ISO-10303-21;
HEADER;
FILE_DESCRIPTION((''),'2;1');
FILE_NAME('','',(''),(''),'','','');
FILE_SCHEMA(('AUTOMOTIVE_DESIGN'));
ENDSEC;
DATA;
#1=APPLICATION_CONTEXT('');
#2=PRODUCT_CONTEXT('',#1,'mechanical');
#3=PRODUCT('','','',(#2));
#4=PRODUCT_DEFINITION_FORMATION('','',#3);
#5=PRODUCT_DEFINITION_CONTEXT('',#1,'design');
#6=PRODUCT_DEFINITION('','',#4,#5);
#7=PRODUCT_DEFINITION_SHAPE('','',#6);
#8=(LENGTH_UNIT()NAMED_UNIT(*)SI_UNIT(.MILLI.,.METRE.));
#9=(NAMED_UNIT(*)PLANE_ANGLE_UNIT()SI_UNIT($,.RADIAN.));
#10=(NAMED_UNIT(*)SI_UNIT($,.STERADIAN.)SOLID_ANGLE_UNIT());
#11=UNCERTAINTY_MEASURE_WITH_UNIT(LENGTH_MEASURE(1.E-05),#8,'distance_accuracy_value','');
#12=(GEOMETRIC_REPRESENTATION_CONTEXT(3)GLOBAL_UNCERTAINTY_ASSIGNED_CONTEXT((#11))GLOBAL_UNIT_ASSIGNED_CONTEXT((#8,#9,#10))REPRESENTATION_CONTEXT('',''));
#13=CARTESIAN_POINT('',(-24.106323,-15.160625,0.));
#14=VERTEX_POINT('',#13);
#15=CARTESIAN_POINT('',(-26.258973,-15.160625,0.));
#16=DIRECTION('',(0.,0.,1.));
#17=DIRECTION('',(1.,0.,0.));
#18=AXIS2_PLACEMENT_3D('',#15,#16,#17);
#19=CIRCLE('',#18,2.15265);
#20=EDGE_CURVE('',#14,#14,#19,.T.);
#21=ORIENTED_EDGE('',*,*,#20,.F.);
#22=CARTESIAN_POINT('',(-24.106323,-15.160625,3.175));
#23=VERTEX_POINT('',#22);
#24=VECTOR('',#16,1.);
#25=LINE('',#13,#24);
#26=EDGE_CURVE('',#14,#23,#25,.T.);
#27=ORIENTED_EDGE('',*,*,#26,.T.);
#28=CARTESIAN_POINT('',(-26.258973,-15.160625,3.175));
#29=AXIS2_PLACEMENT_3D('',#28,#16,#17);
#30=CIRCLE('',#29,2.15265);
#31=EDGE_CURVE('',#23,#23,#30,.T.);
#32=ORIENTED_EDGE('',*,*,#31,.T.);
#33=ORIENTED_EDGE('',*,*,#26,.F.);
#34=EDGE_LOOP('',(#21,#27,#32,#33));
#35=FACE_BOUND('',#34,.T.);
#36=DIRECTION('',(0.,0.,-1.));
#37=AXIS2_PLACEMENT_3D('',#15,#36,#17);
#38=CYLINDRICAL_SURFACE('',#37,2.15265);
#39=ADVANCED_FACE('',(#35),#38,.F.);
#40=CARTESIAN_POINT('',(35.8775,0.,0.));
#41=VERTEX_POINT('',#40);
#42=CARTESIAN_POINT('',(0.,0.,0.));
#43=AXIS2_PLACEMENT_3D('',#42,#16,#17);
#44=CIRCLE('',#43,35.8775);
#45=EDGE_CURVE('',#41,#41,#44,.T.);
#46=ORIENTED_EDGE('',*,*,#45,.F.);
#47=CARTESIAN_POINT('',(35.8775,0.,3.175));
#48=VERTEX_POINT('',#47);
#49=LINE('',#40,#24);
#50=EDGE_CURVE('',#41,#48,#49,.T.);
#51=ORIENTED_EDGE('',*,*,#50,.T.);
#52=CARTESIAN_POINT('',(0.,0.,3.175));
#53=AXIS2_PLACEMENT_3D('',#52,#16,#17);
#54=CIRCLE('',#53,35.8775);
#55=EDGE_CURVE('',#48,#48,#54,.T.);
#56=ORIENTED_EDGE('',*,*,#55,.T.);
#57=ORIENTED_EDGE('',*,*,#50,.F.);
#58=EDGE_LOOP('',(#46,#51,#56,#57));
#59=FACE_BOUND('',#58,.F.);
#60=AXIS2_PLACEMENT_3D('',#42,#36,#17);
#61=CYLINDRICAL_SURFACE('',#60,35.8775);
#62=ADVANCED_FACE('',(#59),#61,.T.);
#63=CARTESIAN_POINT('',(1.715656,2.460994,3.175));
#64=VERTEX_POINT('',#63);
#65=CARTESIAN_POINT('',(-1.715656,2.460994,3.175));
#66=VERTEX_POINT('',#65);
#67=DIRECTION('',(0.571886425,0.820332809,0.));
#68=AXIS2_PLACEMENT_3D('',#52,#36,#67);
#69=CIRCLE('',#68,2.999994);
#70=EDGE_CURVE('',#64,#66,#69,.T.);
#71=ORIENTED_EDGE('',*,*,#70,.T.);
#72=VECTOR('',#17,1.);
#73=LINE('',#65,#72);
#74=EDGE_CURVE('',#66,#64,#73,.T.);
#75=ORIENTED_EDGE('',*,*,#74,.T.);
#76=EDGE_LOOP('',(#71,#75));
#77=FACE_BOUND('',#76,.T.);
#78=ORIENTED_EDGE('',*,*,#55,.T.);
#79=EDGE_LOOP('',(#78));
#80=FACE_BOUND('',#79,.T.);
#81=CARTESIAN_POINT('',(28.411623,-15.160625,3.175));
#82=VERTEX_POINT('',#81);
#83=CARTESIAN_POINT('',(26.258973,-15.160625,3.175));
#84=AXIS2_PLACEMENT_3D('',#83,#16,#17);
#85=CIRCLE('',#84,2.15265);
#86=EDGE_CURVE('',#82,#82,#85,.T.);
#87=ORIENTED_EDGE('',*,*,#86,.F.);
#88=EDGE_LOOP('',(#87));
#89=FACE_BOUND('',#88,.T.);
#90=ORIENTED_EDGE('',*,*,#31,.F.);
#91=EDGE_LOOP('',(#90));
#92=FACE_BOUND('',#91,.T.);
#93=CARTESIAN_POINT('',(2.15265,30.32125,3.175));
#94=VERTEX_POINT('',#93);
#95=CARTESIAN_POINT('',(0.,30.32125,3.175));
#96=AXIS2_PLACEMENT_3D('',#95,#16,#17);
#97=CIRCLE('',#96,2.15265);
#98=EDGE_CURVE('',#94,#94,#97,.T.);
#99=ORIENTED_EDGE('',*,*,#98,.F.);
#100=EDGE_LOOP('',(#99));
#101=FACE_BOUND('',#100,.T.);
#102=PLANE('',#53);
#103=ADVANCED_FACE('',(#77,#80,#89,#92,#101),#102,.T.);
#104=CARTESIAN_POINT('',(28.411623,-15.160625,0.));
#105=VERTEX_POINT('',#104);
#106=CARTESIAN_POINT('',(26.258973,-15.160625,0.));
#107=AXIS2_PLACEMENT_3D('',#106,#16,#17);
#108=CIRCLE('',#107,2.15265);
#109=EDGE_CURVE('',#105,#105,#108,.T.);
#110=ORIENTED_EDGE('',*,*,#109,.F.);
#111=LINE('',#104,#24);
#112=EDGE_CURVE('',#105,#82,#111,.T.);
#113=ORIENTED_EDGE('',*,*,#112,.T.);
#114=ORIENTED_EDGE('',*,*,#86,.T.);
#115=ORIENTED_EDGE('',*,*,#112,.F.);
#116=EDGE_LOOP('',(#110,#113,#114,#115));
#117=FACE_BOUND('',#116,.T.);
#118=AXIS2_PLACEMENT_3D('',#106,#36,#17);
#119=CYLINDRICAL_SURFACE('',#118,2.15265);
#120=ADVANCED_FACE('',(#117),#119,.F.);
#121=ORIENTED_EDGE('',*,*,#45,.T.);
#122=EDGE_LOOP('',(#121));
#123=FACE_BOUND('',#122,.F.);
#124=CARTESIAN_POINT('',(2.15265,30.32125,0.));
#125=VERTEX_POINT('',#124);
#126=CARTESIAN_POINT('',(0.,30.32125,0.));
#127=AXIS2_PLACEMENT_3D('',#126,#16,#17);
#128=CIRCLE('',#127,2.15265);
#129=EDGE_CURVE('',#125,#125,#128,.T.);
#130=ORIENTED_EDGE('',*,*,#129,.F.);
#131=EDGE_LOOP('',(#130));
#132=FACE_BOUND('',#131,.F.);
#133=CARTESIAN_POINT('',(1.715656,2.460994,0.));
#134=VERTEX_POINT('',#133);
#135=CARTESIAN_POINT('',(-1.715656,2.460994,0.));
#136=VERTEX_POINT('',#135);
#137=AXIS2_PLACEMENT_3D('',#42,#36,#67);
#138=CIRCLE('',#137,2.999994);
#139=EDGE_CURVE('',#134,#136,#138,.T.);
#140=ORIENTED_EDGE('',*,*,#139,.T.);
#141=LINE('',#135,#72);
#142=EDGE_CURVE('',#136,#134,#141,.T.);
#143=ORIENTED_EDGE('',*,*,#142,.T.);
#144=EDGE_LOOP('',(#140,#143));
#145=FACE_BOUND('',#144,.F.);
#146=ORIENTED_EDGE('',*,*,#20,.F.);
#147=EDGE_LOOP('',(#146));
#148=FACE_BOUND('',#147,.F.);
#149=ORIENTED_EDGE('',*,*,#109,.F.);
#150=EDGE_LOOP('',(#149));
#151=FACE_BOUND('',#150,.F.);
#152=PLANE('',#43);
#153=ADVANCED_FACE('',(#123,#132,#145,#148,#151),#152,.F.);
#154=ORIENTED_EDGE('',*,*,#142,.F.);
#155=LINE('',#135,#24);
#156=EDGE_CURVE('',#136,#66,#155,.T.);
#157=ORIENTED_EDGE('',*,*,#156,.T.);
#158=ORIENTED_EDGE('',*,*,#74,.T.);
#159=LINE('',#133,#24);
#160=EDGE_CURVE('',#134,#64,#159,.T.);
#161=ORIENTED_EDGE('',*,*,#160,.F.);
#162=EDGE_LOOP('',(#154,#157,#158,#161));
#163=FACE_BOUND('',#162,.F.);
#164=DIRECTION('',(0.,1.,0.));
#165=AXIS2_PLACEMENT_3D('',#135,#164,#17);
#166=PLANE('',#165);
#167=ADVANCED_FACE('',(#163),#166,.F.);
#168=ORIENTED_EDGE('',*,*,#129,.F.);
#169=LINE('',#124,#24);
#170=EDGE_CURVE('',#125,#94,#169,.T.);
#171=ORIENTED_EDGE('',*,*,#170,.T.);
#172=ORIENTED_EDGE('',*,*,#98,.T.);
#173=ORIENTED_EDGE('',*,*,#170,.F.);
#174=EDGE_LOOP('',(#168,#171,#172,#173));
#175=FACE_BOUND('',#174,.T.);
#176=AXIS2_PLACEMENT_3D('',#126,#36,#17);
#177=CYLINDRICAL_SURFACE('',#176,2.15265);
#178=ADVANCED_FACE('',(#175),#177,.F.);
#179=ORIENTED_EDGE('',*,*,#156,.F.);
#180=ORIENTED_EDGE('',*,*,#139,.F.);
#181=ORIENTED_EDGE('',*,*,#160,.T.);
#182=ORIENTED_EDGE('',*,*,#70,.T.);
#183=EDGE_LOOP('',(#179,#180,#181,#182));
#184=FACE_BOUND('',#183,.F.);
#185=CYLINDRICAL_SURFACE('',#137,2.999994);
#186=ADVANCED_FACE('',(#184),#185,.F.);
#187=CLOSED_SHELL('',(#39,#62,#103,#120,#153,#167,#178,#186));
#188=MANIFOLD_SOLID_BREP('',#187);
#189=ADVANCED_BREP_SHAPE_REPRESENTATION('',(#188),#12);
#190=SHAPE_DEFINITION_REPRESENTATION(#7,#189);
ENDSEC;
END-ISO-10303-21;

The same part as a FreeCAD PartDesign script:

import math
import FreeCAD as App
import Part
import Sketcher
from FreeCAD import Vector
Q = App.Units.Quantity

doc = App.newDocument("Part")
body = doc.addObject("PartDesign::Body", "Body")

# Sketch on XY plane
sketch1 = body.newObject("Sketcher::SketchObject", "Sketch")
sketch1.AttachmentSupport = (doc.getObject("XY_Plane"), [""])
sketch1.MapMode = "FlatFace"
sketch1.addGeometry(Part.Circle(Vector(0, 0, 0), Vector(0, 0, 1), 35.8775), False)
sketch1.addGeometry(Part.Circle(Vector(-26.258973, -15.160625, 0), Vector(0, 0, 1), 2.15265), False)
sketch1.addGeometry(Part.Circle(Vector(26.258973, -15.160625, 0), Vector(0, 0, 1), 2.15265), False)
sketch1.addGeometry(Part.LineSegment(Vector(-1.715656, 2.460994, 0), Vector(1.715656, 2.460994, 0)), False)
sketch1.addGeometry(Part.ArcOfCircle(Part.Circle(Vector(0, 0, 0), Vector(0, 0, 1), 2.999994), math.radians(124.881877), math.radians(415.118123)), False)
sketch1.addGeometry(Part.Circle(Vector(0, 30.32125, 0), Vector(0, 0, 1), 2.15265), False)
sketch1.addConstraint(Sketcher.Constraint("Coincident", 3, 1, 4, 1))
sketch1.addConstraint(Sketcher.Constraint("Coincident", 4, 2, 3, 2))
sketch1.addConstraint(Sketcher.Constraint("Horizontal", 3))
sketch1.addConstraint(Sketcher.Constraint("Coincident", 0, 3, -1, 1))
sketch1.addConstraint(Sketcher.Constraint("Coincident", 4, 3, -1, 1))
sketch1.addConstraint(Sketcher.Constraint("Equal", 1, 2))
sketch1.addConstraint(Sketcher.Constraint("Equal", 2, 5))
sketch1.addConstraint(Sketcher.Constraint("Symmetric", 1, 3, 2, 3, -2))
sketch1.addConstraint(Sketcher.Constraint("PointOnObject", 5, 3, -2))
sketch1.addConstraint(Sketcher.Constraint("Diameter", 0, Q("2.825 in")))
sketch1.addConstraint(Sketcher.Constraint("Diameter", 1, Q("0.1695 in")))
sketch1.addConstraint(Sketcher.Constraint("Radius", 4, Q("2.999994 mm")))
sketch1.addConstraint(Sketcher.Constraint("DistanceX", 3, 1, 3, 2, Q("3.431312 mm")))
sketch1.addConstraint(Sketcher.Constraint("DistanceY", -1, 1, 5, 3, Q("30.32125 mm")))
sketch1.addConstraint(Sketcher.Constraint("DistanceY", 1, 3, 3, 1, Q("17.621619 mm")))
sketch1.addConstraint(Sketcher.Constraint("DistanceX", 3, 1, 2, 3, Q("27.974629 mm")))
pad1 = body.newObject("PartDesign::Pad", "Pad")
pad1.Profile = sketch1
pad1.Length = Q("0.125 in")

doc.recompute()
